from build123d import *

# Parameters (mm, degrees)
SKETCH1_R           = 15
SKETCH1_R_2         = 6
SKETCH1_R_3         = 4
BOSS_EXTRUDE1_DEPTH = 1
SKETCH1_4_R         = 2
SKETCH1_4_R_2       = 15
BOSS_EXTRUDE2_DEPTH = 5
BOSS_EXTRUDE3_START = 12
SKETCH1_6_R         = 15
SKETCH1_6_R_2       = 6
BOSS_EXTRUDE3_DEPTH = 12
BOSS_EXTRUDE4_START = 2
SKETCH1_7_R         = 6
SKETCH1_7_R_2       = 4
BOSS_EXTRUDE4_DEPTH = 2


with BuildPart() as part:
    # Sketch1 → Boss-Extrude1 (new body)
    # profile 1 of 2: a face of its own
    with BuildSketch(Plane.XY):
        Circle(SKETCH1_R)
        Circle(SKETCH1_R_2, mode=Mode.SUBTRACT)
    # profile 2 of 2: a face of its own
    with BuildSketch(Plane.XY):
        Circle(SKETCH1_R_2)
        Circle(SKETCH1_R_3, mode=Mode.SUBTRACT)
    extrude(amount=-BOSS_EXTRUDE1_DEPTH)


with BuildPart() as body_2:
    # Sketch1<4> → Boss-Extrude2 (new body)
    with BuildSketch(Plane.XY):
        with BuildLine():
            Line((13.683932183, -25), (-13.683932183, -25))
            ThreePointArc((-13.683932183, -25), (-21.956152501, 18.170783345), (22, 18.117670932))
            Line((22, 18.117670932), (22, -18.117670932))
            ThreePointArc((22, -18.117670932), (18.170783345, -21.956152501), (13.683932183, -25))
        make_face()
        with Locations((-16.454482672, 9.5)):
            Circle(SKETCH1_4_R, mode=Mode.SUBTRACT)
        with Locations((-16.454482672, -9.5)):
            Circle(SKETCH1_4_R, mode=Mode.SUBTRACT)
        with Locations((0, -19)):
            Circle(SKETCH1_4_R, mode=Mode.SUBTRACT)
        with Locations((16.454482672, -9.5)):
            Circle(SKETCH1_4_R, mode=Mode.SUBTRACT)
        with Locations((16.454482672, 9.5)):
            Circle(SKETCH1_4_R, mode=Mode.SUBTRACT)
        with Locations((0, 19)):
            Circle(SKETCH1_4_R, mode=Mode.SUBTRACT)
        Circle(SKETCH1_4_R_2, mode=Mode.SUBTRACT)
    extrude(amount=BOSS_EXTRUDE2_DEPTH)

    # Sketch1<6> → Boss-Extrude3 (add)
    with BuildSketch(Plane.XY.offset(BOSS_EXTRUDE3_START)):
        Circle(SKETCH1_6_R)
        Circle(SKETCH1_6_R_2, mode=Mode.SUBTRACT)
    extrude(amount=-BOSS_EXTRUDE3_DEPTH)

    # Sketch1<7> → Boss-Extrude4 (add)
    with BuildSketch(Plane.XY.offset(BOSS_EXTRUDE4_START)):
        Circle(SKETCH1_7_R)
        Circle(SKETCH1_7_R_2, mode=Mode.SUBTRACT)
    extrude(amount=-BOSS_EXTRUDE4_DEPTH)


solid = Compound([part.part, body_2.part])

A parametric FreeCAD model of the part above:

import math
import FreeCAD as App
import Part
import Sketcher
Q = App.Units.Quantity

doc = App.newDocument("Part")
body = doc.addObject("PartDesign::Body", "Body")

sketch1 = body.newObject("Sketcher::SketchObject", "Sketch")
sketch1.AttachmentSupport = (doc.getObject("XY_Plane"), [""])
sketch1.MapMode = "FlatFace"
sketch1.addGeometry([
    Part.Circle(App.Vector(0, 0, 0), App.Vector(0, 0, 1), 15),
    Part.Circle(App.Vector(0, 0, 0), App.Vector(0, 0, 1), 4),
], False)
sketch1.addConstraint([
    Sketcher.Constraint("Coincident", 0, 3, -1, 1),
    Sketcher.Constraint("Coincident", 1, 3, -1, 1),
    Sketcher.Constraint("Diameter", 0, Q("30 mm")),
    Sketcher.Constraint("Diameter", 1, Q("8 mm")),
])
pad1 = body.newObject("PartDesign::Pad", "Pad")
pad1.Profile = sketch1
pad1.Length = 1
pad1.Reversed = True
body2 = doc.addObject("PartDesign::Body", "Body001")

sketch2 = body2.newObject("Sketcher::SketchObject", "Sketch001")
sketch2.AttachmentSupport = (doc.getObject("XY_Plane001"), [""])
sketch2.MapMode = "FlatFace"
sketch2.addGeometry([
    Part.LineSegment(App.Vector(-13.683932, -25, 0), App.Vector(13.683932, -25, 0)),
    Part.ArcOfCircle(Part.Circle(App.Vector(0, 0, 0), App.Vector(0, 0, 1), 28.5), math.radians(-61.305586), math.radians(-39.472497)),
    Part.LineSegment(App.Vector(22, -18.117671, 0), App.Vector(22, 18.117671, 0)),
    Part.ArcOfCircle(Part.Circle(App.Vector(0, 0, 0), App.Vector(0, 0, 1), 28.5), math.radians(39.472497), math.radians(241.305586)),
    Part.Circle(App.Vector(16.454483, -9.5, 0), App.Vector(0, 0, 1), 2),
    Part.Circle(App.Vector(0, -19, 0), App.Vector(0, 0, 1), 2),
    Part.Circle(App.Vector(-16.454483, -9.5, 0), App.Vector(0, 0, 1), 2),
    Part.Circle(App.Vector(16.454483, 9.5, 0), App.Vector(0, 0, 1), 2),
    Part.Circle(App.Vector(0, 0, 0), App.Vector(0, 0, 1), 15),
    Part.Circle(App.Vector(-16.454483, 9.5, 0), App.Vector(0, 0, 1), 2),
    Part.Circle(App.Vector(0, 19, 0), App.Vector(0, 0, 1), 2),
], False)
sketch2.addConstraint([
    Sketcher.Constraint("Coincident", 0, 2, 1, 1),
    Sketcher.Constraint("Coincident", 1, 2, 2, 1),
    Sketcher.Constraint("Coincident", 2, 2, 3, 1),
    Sketcher.Constraint("Coincident", 3, 2, 0, 1),
    Sketcher.Constraint("Horizontal", 0),
    Sketcher.Constraint("Vertical", 2),
    Sketcher.Constraint("Coincident", 1, 3, -1, 1),
    Sketcher.Constraint("Coincident", 3, 3, -1, 1),
    Sketcher.Constraint("Coincident", 8, 3, -1, 1),
    Sketcher.Constraint("Equal", 1, 3),
    Sketcher.Constraint("Equal", 4, 5),
    Sketcher.Constraint("Equal", 5, 6),
    Sketcher.Constraint("Equal", 6, 7),
    Sketcher.Constraint("Equal", 7, 9),
    Sketcher.Constraint("Equal", 9, 10),
    Sketcher.Constraint("Symmetric", 6, 3, 7, 3, -1, 1),
    Sketcher.Constraint("Symmetric", 4, 3, 9, 3, -1, 1),
    Sketcher.Constraint("Symmetric", 5, 3, 10, 3, -1, 1),
    Sketcher.Constraint("Symmetric", 4, 3, 6, 3, -2),
    Sketcher.Constraint("PointOnObject", 5, 3, -2),
    Sketcher.Constraint("Diameter", 4, Q("4 mm")),
    Sketcher.Constraint("Diameter", 8, Q("30 mm")),
    Sketcher.Constraint("Radius", 1, Q("28.5 mm")),
    Sketcher.Constraint("DistanceY", 5, 3, -1, 1, Q("19 mm")),
    Sketcher.Constraint("DistanceY", 0, 2, -1, 1, Q("25 mm")),
    Sketcher.Constraint("DistanceX", -1, 1, 1, 2, Q("22 mm")),
    Sketcher.Constraint("DistanceY", 4, 3, 7, 3, Q("19 mm")),
    Sketcher.Constraint("DistanceX", 0, 2, 4, 3, Q("2.77055 mm")),
])
pad2 = body2.newObject("PartDesign::Pad", "Pad001")
pad2.Profile = sketch2
pad2.Length = 5

sketch3 = body2.newObject("Sketcher::SketchObject", "Sketch002")
sketch3.AttachmentSupport = (doc.getObject("XY_Plane001"), [""])
sketch3.MapMode = "FlatFace"
sketch3.AttachmentOffset = App.Placement(App.Vector(0, 0, 12), App.Rotation())
sketch3.addGeometry([
    Part.Circle(App.Vector(0, 0, 0), App.Vector(0, 0, 1), 15),
    Part.Circle(App.Vector(0, 0, 0), App.Vector(0, 0, 1), 6),
], False)
sketch3.addConstraint([
    Sketcher.Constraint("Coincident", 0, 3, -1, 1),
    Sketcher.Constraint("Coincident", 1, 3, -1, 1),
    Sketcher.Constraint("Diameter", 0, Q("30 mm")),
    Sketcher.Constraint("Diameter", 1, Q("12 mm")),
])
pad3 = body2.newObject("PartDesign::Pad", "Pad002")
pad3.Profile = sketch3
pad3.Length = 12
pad3.Reversed = True

sketch4 = body2.newObject("Sketcher::SketchObject", "Sketch003")
sketch4.AttachmentSupport = (doc.getObject("XY_Plane001"), [""])
sketch4.MapMode = "FlatFace"
sketch4.AttachmentOffset = App.Placement(App.Vector(0, 0, 2), App.Rotation())
sketch4.addGeometry([
    Part.Circle(App.Vector(0, 0, 0), App.Vector(0, 0, 1), 6),
    Part.Circle(App.Vector(0, 0, 0), App.Vector(0, 0, 1), 4),
], False)
sketch4.addConstraint([
    Sketcher.Constraint("Coincident", 0, 3, -1, 1),
    Sketcher.Constraint("Coincident", 1, 3, -1, 1),
    Sketcher.Constraint("Diameter", 0, Q("12 mm")),
    Sketcher.Constraint("Diameter", 1, Q("8 mm")),
])
pad4 = body2.newObject("PartDesign::Pad", "Pad003")
pad4.Profile = sketch4
pad4.Length = 2
pad4.Reversed = True

doc.recompute()
